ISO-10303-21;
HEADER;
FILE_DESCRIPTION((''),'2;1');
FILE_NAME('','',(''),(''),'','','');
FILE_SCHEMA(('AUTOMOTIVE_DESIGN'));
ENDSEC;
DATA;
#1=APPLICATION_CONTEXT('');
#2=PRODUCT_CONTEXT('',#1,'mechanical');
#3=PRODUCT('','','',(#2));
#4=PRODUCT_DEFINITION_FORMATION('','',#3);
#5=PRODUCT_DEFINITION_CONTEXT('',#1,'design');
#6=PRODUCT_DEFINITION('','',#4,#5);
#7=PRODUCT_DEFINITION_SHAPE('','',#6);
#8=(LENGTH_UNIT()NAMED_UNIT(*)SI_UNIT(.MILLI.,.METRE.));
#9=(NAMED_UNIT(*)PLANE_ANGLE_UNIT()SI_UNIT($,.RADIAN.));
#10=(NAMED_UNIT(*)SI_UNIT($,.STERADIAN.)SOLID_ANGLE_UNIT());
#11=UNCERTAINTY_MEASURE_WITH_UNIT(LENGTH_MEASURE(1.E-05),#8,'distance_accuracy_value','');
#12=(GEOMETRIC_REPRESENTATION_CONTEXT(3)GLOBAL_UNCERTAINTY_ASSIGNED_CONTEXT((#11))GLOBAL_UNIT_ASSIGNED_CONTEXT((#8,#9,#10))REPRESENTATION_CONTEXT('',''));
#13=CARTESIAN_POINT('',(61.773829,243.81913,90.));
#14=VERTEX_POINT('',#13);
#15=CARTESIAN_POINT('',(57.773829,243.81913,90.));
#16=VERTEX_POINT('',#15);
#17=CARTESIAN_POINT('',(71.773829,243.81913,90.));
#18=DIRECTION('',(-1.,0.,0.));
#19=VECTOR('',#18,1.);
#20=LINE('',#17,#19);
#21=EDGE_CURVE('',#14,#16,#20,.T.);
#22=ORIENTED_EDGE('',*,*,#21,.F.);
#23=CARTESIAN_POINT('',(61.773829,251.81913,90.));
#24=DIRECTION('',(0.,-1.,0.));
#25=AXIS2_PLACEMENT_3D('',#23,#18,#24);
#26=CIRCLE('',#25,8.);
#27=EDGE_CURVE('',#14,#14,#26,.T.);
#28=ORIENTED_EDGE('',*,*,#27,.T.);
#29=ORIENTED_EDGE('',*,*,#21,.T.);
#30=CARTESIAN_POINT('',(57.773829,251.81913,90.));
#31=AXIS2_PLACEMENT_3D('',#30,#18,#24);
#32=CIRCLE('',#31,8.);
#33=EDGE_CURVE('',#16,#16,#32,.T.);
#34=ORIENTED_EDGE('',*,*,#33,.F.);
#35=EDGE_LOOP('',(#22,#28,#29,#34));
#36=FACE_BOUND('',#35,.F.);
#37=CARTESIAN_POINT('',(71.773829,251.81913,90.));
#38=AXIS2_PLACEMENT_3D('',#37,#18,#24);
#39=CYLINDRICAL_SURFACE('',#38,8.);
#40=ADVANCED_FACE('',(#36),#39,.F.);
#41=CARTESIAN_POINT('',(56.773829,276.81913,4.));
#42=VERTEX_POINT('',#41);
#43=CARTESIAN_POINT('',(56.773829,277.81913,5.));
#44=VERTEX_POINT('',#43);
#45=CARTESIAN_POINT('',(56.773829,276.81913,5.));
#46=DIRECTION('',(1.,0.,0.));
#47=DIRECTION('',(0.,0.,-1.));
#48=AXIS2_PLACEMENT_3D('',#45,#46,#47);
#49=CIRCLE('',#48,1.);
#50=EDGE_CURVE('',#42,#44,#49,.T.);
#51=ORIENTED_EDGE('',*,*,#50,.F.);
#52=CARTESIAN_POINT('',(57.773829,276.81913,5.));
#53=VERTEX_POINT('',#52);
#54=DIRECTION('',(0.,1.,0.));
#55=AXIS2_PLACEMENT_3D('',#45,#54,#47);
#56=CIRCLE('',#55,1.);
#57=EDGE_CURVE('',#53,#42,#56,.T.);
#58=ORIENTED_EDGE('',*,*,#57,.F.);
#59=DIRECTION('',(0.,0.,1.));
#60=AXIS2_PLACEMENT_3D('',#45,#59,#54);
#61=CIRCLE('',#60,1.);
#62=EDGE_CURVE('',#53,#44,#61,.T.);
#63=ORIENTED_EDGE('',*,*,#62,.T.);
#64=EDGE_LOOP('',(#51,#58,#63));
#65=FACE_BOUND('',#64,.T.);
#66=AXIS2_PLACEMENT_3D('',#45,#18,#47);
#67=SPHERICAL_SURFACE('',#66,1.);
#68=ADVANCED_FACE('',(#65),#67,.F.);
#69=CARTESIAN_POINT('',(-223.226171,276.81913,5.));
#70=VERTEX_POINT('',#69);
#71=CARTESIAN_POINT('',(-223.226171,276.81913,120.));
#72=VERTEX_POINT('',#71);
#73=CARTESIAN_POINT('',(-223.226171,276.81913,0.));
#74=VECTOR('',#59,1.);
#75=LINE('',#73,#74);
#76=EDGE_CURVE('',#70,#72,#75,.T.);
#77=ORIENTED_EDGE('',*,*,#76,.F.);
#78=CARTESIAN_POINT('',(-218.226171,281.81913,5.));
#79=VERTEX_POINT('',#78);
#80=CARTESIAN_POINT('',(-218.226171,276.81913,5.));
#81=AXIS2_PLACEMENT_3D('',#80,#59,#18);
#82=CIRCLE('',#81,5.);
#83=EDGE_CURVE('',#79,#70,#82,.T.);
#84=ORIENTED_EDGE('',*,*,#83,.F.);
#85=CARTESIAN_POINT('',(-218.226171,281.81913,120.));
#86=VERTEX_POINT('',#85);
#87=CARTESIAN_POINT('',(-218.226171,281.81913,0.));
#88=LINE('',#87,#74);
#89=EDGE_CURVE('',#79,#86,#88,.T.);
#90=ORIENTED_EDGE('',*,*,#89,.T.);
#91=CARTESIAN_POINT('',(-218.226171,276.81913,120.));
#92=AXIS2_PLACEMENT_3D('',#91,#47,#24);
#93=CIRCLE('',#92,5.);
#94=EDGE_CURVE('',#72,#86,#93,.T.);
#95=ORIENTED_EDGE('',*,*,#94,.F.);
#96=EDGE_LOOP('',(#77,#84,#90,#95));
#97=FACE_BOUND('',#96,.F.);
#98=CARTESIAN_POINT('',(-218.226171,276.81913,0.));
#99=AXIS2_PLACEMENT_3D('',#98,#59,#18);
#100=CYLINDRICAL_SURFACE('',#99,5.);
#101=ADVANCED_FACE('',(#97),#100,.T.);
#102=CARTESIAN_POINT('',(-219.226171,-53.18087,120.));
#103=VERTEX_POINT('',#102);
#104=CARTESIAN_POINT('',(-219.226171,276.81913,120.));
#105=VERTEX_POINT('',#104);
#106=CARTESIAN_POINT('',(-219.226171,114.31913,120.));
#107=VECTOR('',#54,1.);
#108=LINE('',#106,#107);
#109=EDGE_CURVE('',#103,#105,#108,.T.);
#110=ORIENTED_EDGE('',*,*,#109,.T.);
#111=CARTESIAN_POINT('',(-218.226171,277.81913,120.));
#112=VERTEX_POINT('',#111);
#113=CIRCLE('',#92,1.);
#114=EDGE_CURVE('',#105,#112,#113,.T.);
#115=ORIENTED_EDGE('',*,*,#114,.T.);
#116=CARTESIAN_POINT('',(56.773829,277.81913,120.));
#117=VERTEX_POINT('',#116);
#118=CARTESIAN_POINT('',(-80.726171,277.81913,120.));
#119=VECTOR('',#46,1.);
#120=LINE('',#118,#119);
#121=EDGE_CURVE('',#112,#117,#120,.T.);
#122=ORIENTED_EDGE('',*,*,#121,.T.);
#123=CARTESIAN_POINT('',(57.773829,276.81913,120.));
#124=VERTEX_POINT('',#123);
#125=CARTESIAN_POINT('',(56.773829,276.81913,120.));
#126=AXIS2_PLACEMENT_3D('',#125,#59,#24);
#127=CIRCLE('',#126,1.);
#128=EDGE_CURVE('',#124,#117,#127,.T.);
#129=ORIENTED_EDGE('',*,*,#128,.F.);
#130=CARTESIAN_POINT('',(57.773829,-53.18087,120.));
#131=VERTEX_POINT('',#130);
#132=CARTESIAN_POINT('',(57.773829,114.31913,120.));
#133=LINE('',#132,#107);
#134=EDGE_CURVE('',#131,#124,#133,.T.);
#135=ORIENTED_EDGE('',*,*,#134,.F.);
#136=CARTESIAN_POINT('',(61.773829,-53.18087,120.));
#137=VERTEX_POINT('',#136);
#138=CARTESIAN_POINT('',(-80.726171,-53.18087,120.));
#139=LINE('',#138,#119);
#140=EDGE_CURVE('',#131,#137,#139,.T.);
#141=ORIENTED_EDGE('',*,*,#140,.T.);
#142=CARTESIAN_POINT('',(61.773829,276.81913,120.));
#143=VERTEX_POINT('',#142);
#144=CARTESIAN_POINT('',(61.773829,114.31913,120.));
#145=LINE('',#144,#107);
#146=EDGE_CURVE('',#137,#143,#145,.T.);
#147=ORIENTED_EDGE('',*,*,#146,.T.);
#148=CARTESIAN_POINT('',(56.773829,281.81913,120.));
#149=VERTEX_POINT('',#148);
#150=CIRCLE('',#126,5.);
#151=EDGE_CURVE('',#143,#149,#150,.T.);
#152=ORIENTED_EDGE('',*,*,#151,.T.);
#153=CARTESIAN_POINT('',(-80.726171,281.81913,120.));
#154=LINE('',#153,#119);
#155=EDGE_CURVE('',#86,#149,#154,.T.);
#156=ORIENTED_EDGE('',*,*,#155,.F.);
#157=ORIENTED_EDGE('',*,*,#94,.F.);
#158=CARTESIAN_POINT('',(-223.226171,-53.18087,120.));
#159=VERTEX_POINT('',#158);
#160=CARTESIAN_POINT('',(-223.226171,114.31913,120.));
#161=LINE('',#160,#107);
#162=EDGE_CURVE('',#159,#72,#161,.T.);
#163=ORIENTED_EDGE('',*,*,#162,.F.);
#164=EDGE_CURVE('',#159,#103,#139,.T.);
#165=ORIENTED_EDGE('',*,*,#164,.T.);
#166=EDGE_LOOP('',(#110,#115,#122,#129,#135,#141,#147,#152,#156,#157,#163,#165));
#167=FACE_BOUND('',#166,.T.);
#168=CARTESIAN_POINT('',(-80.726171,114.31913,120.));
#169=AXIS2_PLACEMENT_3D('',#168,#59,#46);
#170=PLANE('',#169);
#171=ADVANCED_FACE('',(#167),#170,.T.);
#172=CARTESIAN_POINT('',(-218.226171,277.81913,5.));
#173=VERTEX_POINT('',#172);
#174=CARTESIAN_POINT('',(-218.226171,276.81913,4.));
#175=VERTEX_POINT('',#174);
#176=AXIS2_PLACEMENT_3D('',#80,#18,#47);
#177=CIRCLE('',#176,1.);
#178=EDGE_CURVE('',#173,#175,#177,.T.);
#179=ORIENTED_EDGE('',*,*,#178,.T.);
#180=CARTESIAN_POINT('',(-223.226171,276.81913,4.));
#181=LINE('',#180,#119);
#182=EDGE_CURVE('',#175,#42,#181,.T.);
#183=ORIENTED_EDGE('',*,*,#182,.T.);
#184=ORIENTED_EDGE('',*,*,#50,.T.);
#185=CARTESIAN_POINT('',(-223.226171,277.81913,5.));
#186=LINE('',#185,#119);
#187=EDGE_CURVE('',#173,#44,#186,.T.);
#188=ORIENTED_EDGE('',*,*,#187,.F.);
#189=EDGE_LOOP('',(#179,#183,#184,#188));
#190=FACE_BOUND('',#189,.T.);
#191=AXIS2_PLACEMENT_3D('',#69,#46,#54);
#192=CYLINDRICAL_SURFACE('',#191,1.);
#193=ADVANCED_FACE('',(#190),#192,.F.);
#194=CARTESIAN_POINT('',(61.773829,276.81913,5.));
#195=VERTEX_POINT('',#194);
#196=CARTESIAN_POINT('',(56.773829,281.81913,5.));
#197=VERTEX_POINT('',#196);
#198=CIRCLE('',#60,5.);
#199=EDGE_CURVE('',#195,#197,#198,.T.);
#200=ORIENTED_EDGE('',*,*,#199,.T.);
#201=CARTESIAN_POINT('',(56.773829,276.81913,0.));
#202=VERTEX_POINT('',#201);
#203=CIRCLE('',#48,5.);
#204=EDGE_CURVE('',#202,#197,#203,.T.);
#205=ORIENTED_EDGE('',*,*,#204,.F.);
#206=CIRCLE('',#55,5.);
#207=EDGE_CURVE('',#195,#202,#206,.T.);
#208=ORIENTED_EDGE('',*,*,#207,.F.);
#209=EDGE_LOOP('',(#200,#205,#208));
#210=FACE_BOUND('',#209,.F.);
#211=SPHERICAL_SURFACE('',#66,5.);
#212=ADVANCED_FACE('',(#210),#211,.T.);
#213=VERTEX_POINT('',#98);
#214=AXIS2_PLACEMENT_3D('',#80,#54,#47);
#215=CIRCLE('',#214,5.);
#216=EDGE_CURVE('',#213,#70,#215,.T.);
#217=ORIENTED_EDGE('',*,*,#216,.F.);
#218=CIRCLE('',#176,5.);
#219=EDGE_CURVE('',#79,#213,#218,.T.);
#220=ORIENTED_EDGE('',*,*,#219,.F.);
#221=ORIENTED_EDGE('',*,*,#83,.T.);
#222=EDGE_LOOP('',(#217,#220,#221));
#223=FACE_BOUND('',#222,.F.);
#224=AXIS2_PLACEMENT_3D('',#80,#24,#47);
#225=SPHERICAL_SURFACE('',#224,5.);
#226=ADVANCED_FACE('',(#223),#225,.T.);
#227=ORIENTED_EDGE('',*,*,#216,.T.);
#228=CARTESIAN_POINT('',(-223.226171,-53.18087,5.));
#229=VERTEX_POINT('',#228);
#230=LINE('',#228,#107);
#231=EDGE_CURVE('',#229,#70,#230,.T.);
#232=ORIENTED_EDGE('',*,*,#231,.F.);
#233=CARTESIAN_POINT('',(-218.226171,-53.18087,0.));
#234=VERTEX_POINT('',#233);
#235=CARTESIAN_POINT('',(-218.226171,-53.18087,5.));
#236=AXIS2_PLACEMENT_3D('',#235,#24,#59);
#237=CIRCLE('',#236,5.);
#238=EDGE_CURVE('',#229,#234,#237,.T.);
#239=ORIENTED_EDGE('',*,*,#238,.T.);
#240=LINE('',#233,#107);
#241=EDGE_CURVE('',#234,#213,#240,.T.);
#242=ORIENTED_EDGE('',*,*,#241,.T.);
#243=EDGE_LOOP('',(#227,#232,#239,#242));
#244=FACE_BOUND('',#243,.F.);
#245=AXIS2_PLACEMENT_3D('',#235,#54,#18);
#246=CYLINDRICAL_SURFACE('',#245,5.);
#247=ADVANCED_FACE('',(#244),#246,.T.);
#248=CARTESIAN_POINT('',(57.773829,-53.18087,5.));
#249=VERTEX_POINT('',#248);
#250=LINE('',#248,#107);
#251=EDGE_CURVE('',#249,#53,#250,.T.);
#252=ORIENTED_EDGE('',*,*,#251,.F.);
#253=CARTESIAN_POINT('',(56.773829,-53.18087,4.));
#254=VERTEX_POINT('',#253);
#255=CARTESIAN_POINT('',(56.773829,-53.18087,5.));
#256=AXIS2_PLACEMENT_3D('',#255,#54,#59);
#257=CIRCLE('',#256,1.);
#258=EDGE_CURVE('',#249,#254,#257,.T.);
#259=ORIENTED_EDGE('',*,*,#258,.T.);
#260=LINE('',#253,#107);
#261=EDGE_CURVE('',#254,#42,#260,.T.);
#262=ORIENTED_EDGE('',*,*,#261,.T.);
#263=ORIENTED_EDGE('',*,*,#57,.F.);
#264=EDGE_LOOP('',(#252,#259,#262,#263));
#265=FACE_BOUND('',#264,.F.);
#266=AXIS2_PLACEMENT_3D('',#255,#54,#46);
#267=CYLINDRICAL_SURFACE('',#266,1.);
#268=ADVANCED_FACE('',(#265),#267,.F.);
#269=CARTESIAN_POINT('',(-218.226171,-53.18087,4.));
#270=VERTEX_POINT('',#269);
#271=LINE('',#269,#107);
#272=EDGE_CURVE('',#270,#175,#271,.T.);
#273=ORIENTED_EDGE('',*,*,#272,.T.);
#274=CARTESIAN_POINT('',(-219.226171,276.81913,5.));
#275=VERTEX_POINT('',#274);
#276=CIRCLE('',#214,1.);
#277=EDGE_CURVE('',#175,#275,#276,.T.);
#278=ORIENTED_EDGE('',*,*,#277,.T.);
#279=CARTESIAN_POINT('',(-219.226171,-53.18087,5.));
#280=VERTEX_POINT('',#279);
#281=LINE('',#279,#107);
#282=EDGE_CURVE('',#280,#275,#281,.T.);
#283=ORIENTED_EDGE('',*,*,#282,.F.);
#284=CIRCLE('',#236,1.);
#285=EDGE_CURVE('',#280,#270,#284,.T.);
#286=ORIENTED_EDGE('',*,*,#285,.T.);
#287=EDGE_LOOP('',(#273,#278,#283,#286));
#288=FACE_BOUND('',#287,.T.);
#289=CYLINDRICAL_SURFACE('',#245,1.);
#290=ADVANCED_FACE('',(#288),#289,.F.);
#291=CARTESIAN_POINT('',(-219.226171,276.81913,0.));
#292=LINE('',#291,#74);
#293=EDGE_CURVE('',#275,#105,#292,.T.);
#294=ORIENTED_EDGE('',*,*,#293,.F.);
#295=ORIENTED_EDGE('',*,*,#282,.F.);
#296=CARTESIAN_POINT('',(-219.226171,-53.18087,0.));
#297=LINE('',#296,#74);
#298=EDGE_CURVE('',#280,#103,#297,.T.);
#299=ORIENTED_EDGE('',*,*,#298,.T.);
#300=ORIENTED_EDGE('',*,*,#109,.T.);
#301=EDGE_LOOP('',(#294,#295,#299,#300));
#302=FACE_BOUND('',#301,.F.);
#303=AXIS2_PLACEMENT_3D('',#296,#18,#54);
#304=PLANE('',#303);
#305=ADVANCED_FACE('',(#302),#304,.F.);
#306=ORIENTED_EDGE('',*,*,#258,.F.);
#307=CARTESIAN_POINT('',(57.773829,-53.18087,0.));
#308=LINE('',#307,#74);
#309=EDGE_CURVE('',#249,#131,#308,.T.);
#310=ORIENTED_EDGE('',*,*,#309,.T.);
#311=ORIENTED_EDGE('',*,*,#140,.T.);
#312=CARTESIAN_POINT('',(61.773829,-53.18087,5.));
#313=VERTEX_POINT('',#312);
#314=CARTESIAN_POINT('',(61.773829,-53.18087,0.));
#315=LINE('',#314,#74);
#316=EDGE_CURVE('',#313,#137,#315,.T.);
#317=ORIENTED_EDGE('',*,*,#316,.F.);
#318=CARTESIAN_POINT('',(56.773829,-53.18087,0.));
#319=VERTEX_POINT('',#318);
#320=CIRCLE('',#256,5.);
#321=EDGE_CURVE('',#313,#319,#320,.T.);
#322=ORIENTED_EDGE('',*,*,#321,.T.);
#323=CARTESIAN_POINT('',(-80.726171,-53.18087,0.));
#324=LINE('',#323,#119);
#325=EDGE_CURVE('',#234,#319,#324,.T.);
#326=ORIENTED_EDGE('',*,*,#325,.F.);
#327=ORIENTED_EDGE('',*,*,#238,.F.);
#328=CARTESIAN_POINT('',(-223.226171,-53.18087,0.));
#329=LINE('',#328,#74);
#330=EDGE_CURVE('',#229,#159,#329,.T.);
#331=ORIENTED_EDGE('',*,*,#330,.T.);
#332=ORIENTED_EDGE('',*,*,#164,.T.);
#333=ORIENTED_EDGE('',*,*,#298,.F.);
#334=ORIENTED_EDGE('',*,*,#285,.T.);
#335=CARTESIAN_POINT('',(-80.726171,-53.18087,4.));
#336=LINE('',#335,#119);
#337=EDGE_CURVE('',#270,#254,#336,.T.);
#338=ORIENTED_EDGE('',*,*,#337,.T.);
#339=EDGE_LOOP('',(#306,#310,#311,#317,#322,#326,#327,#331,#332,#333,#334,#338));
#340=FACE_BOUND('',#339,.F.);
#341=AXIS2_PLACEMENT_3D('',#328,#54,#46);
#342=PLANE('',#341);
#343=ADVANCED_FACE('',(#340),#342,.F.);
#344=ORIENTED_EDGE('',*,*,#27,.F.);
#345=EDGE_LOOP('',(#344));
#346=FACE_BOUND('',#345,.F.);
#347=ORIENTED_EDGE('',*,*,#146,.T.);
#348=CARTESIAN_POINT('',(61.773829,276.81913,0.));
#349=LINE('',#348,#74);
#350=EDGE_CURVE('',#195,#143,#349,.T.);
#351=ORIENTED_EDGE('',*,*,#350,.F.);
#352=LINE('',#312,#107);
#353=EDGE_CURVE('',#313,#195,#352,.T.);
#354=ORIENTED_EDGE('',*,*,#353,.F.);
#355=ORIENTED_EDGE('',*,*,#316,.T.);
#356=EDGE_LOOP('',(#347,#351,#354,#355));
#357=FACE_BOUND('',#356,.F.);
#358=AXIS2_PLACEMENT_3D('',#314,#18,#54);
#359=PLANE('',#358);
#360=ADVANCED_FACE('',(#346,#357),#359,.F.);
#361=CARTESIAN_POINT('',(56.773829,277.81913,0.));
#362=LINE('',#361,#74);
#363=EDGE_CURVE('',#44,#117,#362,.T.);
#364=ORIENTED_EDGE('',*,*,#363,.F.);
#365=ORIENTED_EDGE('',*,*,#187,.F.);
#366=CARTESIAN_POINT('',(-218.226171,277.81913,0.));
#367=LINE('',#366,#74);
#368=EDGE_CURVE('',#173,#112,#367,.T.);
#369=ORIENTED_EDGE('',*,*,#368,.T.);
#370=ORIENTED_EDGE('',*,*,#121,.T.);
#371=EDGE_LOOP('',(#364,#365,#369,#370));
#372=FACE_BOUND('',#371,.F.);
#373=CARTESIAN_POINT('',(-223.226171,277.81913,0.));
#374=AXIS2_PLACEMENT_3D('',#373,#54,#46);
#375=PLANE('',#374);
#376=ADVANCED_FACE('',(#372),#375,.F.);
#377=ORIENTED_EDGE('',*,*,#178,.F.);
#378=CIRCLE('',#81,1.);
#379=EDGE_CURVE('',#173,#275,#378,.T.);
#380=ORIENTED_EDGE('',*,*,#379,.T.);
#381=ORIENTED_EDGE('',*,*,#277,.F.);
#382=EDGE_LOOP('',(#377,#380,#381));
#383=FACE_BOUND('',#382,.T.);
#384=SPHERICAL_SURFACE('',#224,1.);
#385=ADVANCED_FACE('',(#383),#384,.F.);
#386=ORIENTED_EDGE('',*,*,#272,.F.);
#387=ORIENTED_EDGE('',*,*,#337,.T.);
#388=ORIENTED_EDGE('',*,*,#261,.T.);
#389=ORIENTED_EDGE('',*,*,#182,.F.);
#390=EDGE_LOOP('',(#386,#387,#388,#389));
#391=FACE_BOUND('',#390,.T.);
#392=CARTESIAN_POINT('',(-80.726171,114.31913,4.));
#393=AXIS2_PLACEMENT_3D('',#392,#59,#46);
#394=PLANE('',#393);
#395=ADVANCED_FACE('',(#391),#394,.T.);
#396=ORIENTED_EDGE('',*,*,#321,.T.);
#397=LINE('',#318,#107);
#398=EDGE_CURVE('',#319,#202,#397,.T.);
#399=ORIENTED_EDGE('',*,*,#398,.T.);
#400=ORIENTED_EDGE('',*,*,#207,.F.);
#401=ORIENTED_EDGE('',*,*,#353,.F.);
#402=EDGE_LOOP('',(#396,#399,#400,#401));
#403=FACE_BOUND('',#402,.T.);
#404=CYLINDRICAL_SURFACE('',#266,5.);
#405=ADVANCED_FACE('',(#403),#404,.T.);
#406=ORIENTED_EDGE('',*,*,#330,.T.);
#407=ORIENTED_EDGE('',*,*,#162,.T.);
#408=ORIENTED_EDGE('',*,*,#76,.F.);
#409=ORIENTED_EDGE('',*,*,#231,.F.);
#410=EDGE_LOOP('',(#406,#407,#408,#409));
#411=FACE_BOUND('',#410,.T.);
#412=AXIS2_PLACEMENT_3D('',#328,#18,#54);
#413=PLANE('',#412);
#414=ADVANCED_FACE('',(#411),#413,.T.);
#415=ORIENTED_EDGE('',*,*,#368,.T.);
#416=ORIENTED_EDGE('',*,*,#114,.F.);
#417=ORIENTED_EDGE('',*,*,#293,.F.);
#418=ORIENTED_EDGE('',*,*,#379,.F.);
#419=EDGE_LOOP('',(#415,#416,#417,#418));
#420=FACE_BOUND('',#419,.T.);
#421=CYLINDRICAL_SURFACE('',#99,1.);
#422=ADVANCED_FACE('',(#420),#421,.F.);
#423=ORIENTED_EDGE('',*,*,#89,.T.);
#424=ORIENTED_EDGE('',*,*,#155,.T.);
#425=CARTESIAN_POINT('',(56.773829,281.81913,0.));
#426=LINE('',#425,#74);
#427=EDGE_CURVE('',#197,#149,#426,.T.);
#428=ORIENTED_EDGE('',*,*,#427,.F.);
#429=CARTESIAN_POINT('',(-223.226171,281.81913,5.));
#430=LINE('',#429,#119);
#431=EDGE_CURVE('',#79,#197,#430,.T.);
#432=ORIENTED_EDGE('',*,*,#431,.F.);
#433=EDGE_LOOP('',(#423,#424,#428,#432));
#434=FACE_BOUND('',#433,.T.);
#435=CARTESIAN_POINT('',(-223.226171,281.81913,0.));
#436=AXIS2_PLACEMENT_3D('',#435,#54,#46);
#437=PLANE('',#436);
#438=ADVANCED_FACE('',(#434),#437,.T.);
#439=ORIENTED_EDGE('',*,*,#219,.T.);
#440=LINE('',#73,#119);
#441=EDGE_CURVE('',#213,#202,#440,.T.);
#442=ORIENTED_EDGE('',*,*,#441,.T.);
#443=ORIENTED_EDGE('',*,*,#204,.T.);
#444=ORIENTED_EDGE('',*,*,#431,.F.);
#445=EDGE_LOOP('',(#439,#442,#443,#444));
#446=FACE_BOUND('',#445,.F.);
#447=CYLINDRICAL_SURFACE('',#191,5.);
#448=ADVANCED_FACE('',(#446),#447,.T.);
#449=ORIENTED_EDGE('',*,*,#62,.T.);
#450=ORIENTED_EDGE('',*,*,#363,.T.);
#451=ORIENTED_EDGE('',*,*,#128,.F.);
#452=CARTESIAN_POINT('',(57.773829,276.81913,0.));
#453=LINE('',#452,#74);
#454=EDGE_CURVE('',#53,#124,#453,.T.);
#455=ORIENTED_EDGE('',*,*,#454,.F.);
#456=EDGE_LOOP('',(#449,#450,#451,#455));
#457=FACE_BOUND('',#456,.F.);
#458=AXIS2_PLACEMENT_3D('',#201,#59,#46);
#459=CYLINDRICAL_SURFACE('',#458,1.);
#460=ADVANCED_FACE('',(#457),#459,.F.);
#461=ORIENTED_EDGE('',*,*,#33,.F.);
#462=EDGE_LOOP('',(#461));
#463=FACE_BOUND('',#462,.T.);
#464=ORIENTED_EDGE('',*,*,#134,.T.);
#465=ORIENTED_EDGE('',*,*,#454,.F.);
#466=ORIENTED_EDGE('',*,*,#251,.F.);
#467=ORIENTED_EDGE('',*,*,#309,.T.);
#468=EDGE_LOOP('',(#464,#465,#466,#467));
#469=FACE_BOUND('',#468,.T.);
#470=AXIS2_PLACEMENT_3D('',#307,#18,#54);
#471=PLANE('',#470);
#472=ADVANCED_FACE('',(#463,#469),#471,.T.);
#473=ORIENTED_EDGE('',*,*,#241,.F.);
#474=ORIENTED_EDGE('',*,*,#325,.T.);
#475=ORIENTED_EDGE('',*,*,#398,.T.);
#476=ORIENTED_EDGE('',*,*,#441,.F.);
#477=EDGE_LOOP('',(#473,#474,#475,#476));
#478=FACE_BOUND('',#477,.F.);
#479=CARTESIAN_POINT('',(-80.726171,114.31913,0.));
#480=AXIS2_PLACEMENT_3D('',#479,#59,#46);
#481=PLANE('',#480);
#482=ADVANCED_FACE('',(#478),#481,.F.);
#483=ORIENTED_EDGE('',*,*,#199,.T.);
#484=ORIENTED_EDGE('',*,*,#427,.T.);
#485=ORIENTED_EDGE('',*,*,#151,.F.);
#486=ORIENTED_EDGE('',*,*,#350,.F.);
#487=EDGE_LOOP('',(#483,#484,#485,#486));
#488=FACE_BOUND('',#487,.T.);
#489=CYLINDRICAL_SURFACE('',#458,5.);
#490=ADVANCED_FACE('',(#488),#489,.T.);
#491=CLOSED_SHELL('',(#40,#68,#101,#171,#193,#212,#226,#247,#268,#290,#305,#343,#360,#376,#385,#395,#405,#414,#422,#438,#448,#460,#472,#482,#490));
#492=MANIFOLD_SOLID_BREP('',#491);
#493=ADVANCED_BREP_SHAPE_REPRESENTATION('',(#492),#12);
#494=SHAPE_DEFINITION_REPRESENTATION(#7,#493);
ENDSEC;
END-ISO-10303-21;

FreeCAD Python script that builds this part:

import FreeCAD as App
import Part
import Sketcher

V = App.Vector


def edges_at(feature, points):
    """Names of the edges that pass closest to the given points."""
    edges = feature.Shape.Edges
    near = lambda p: min(range(len(edges)), key=lambda i: edges[i].distToShape(Part.Vertex(*p))[0])
    return sorted({f"Edge{near(p) + 1}" for p in points})


def faces_at(feature, points):
    """Names of the faces that lie closest to the given points."""
    faces = feature.Shape.Faces
    near = lambda p: min(range(len(faces)), key=lambda i: faces[i].distToShape(Part.Vertex(*p))[0])
    return sorted({f"Face{near(p) + 1}" for p in points})

doc = App.newDocument("Part")
body = doc.addObject("PartDesign::Body", "Body")

# Sketch on XY plane
sketch1 = body.newObject("Sketcher::SketchObject", "Sketch")
sketch1.AttachmentSupport = (doc.getObject("XY_Plane"), [""])
sketch1.MapMode = "FlatFace"
sketch1.addGeometry([
    Part.LineSegment(V(-223, 282, 0), V(-223, -53, 0)),
    Part.LineSegment(V(-223, -53, 0), V(62, -53, 0)),
    Part.LineSegment(V(62, -53, 0), V(62, 282, 0)),
    Part.LineSegment(V(62, 282, 0), V(-223, 282, 0)),
], False)
sketch1.addConstraint([
    Sketcher.Constraint("Coincident", 0, 2, 1, 1),
    Sketcher.Constraint("Coincident", 1, 2, 2, 1),
    Sketcher.Constraint("Coincident", 2, 2, 3, 1),
    Sketcher.Constraint("Coincident", 3, 2, 0, 1),
    Sketcher.Constraint("Vertical", 0),
    Sketcher.Constraint("Horizontal", 1),
    Sketcher.Constraint("Vertical", 2),
    Sketcher.Constraint("Horizontal", 3),
    Sketcher.Constraint("DistanceX", 1, 1, 1, 2, 285.0),
    Sketcher.Constraint("DistanceY", 0, 2, 0, 1, 335.0),
    Sketcher.Constraint("DistanceX", 0, 2, -1, 1, 223.226171),
    Sketcher.Constraint("DistanceY", 0, 2, -1, 1, 53.18087),
])
pad1 = body.newObject("PartDesign::Pad", "Pad")
pad1.Profile = sketch1
pad1.Length = 120
doc.recompute()

fillet = body.newObject("PartDesign::Fillet", "Fillet")
fillet.Base = (pad1, edges_at(pad1, [
    (-223.226, 114.319, 0),
    (-80.726, 281.819, 0),
    (61.774, 114.319, 0),
    (-223.226, 281.819, 60),
    (61.774, 281.819, 60),
]))
fillet.Radius = 5
doc.recompute()

thickness = body.newObject("PartDesign::Thickness", "Thickness")
thickness.Base = (fillet, faces_at(fillet, [(-80.726, 114.319, 120), (-80.726, -53.181, 60)]))
thickness.Value = 4
thickness.Reversed = True
thickness.Join = "Arc"

# Sketch on YZ plane
sketch2 = body.newObject("Sketcher::SketchObject", "Sketch001")
sketch2.AttachmentSupport = (doc.getObject("YZ_Plane"), [""])
sketch2.MapMode = "FlatFace"
sketch2.AttachmentOffset = App.Placement(V(0, 0, 61.773829), App.Rotation())
sketch2.addGeometry(Part.Circle(V(252, 90, 0), V(0, 0, 1), 8), False)
sketch2.addConstraint([
    Sketcher.Constraint("Diameter", 0, 16.0),
    Sketcher.Constraint("DistanceY", -1, 1, 0, 3, 90.0),
    Sketcher.Constraint("DistanceX", -1, 1, 0, 3, 251.81913),
])
doc.recompute()
hole = body.newObject("PartDesign::Hole", "Hole")
hole.Profile = sketch2
hole.ThreadType = "None"
hole.Diameter = 16
hole.DepthType = "Dimension"
hole.Depth = 10
hole.DrillPoint = "Flat"

doc.recompute()
